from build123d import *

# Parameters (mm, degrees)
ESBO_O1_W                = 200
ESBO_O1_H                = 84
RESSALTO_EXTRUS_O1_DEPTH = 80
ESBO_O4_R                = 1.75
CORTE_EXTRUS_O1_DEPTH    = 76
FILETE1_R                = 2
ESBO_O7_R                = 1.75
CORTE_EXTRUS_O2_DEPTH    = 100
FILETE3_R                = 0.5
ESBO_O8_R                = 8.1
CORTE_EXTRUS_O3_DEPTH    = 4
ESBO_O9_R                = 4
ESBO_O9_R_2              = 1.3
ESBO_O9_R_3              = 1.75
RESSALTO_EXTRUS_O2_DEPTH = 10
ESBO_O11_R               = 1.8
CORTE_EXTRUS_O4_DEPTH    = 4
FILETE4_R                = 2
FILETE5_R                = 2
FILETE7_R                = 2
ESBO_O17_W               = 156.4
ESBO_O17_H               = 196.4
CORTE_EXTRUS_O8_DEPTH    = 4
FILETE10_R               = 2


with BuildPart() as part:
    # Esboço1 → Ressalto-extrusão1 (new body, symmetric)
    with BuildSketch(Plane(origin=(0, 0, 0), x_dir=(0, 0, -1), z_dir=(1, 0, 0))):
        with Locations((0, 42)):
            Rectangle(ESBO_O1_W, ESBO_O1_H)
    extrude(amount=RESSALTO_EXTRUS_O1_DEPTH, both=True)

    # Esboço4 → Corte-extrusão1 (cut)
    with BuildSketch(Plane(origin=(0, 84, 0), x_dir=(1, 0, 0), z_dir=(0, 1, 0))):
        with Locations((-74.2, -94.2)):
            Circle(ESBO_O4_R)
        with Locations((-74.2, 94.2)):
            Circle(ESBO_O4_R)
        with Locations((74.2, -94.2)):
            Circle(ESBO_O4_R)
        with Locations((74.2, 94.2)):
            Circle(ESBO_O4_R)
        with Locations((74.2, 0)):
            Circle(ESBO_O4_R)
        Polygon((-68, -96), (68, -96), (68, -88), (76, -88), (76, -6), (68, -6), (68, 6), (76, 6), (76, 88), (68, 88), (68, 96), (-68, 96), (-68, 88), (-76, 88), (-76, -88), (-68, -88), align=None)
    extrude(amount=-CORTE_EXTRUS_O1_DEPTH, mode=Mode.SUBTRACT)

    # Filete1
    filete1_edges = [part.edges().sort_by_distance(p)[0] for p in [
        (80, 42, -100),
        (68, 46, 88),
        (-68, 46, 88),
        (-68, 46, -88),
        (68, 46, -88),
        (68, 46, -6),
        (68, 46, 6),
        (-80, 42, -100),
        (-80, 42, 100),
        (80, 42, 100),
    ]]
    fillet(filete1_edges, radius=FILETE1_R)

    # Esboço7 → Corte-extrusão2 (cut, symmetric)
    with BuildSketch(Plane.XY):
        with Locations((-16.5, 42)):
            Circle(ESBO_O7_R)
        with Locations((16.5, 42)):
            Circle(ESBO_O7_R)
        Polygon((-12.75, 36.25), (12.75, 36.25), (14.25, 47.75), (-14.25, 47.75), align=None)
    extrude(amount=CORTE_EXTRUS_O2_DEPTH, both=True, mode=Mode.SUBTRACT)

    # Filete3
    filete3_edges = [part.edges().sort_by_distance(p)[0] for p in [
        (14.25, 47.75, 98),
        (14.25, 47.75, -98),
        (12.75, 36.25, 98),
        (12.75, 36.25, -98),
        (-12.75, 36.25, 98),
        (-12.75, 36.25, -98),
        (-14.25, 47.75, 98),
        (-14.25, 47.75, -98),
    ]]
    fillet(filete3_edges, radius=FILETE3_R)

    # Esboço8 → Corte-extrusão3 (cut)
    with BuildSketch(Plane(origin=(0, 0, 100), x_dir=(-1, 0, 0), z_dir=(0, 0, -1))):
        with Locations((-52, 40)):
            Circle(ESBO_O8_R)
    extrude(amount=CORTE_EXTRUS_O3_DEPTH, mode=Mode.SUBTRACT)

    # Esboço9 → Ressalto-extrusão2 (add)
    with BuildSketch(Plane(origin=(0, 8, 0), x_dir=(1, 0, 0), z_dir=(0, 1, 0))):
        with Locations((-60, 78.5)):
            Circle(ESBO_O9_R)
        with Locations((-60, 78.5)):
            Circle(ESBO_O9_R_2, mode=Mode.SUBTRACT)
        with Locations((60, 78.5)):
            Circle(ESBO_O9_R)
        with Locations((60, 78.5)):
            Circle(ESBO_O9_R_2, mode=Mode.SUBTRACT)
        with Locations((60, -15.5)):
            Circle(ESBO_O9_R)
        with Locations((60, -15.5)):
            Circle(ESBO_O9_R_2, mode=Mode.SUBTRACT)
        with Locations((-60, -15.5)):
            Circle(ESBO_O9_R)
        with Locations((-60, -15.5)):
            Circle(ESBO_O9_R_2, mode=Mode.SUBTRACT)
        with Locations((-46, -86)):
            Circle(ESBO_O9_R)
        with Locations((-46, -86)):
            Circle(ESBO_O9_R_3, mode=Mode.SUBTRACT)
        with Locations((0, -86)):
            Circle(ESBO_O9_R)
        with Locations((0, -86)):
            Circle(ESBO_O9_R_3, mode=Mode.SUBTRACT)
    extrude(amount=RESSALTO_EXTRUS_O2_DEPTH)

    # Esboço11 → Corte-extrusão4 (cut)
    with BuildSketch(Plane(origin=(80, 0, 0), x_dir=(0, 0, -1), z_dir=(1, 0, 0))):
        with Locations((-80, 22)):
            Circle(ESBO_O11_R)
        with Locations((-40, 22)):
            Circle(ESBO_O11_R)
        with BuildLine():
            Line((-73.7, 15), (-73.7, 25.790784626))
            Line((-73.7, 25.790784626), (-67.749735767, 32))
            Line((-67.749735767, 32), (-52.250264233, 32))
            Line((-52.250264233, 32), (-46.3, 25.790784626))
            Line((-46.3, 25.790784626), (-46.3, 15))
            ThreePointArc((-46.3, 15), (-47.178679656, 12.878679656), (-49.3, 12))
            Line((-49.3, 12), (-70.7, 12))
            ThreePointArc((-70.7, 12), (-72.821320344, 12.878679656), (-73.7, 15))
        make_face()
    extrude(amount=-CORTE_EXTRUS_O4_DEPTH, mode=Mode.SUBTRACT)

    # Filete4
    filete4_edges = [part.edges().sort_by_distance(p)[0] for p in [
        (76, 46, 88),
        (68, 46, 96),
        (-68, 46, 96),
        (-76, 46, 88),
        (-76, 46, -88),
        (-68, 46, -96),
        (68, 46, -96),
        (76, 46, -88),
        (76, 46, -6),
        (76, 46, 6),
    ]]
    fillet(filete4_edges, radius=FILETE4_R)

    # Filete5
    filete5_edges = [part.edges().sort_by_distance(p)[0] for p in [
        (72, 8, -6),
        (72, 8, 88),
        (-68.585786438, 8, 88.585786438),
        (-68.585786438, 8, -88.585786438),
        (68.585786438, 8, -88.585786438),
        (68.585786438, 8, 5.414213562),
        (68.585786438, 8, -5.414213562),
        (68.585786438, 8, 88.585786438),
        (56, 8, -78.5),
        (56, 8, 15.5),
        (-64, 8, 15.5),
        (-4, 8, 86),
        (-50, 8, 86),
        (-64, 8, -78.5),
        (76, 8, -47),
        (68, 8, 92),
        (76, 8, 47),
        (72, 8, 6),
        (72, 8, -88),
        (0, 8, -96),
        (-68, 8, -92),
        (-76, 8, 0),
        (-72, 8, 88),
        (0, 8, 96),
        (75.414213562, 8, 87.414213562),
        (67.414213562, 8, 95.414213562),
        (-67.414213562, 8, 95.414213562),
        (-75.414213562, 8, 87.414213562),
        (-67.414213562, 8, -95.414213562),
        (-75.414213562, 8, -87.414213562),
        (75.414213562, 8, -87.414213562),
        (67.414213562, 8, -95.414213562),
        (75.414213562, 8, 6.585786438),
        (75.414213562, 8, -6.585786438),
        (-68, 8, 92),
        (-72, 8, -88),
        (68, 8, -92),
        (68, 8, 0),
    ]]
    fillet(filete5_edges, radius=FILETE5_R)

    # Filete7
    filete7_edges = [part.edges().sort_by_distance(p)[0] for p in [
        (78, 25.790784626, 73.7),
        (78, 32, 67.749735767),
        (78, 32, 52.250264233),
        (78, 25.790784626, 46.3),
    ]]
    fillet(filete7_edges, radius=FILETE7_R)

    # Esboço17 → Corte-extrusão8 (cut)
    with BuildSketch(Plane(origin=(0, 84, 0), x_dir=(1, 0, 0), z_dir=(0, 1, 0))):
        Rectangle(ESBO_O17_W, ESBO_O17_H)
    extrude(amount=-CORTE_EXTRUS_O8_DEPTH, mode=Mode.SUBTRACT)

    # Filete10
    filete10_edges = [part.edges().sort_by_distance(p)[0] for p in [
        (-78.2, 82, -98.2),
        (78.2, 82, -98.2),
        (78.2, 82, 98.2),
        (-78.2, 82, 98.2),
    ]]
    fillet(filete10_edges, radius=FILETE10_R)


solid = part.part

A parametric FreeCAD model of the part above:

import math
import FreeCAD as App
import Part
import Sketcher

V = App.Vector
Q = App.Units.Quantity


def edges_at(feature, points):
    """Names of the edges that pass closest to the given points."""
    edges = feature.Shape.Edges
    near = lambda p: min(range(len(edges)), key=lambda i: edges[i].distToShape(Part.Vertex(*p))[0])
    return sorted({f"Edge{near(p) + 1}" for p in points})


def add_polygon(sketch, points):
    """Adds a closed chain of lines whose ends are joined by coincident constraints."""
    first, n = sketch.GeometryCount, len(points)
    for a, b in zip(points, points[1:] + points[:1]):
        sketch.addGeometry(Part.LineSegment(App.Vector(*a, 0), App.Vector(*b, 0)), False)
    for i in range(n):
        sketch.addConstraint(Sketcher.Constraint("Coincident", first + i, 2, first + (i + 1) % n, 1))

doc = App.newDocument("Part")
body = doc.addObject("PartDesign::Body", "Body")

# Sketch on YZ plane
sketch1 = body.newObject("Sketcher::SketchObject", "Sketch")
sketch1.AttachmentSupport = (doc.getObject("YZ_Plane"), [""])
sketch1.MapMode = "FlatFace"
add_polygon(sketch1, [(84, 100), (0, 100), (0, -100), (84, -100)])  # lines 0-3
sketch1.addConstraint(Sketcher.Constraint("Horizontal", 0))
sketch1.addConstraint(Sketcher.Constraint("Vertical", 1))
sketch1.addConstraint(Sketcher.Constraint("Horizontal", 2))
sketch1.addConstraint(Sketcher.Constraint("Vertical", 3))
sketch1.addConstraint(Sketcher.Constraint("Symmetric", 0, 2, 1, 2, -1, 1))
sketch1.addConstraint(Sketcher.Constraint("DistanceX", 0, 2, 0, 1, Q("84 mm")))
sketch1.addConstraint(Sketcher.Constraint("DistanceY", 1, 2, 1, 1, Q("200 mm")))
pad1 = body.newObject("PartDesign::Pad", "Pad")
pad1.Profile = sketch1
pad1.Length = 160
pad1.Midplane = True

# Sketch on XZ plane
sketch2 = body.newObject("Sketcher::SketchObject", "Sketch001")
sketch2.AttachmentSupport = (doc.getObject("XZ_Plane"), [""])
sketch2.MapMode = "FlatFace"
sketch2.AttachmentOffset = App.Placement(V(0, 0, -84), App.Rotation())
sketch2.addGeometry(Part.Circle(V(-74.2, 94.2, 0), V(0, 0, 1), 1.75), False)  # 0
sketch2.addGeometry(Part.Circle(V(-74.2, -94.2, 0), V(0, 0, 1), 1.75), False)  # 1
sketch2.addGeometry(Part.Circle(V(74.2, 94.2, 0), V(0, 0, 1), 1.75), False)  # 2
sketch2.addGeometry(Part.Circle(V(74.2, -94.2, 0), V(0, 0, 1), 1.75), False)  # 3
sketch2.addGeometry(Part.Circle(V(74.2, 0, 0), V(0, 0, 1), 1.75), False)  # 4
add_polygon(sketch2, [(-68, 96), (68, 96), (68, 88), (76, 88), (76, 6), (68, 6), (68, -6), (76, -6), (76, -88), (68, -88), (68, -96), (-68, -96), (-68, -88), (-76, -88), (-76, 88), (-68, 88)])  # lines 5-20
sketch2.addConstraint(Sketcher.Constraint("Horizontal", 5))
sketch2.addConstraint(Sketcher.Constraint("Vertical", 6))
sketch2.addConstraint(Sketcher.Constraint("Horizontal", 7))
sketch2.addConstraint(Sketcher.Constraint("Vertical", 8))
sketch2.addConstraint(Sketcher.Constraint("Horizontal", 9))
sketch2.addConstraint(Sketcher.Constraint("Vertical", 10))
sketch2.addConstraint(Sketcher.Constraint("Horizontal", 11))
sketch2.addConstraint(Sketcher.Constraint("Vertical", 12))
sketch2.addConstraint(Sketcher.Constraint("Horizontal", 13))
sketch2.addConstraint(Sketcher.Constraint("Vertical", 14))
sketch2.addConstraint(Sketcher.Constraint("Horizontal", 15))
sketch2.addConstraint(Sketcher.Constraint("Vertical", 16))
sketch2.addConstraint(Sketcher.Constraint("Horizontal", 17))
sketch2.addConstraint(Sketcher.Constraint("Vertical", 18))
sketch2.addConstraint(Sketcher.Constraint("Horizontal", 19))
sketch2.addConstraint(Sketcher.Constraint("Vertical", 20))
sketch2.addConstraint(Sketcher.Constraint("Equal", 0, 1))
sketch2.addConstraint(Sketcher.Constraint("Equal", 1, 2))
sketch2.addConstraint(Sketcher.Constraint("Equal", 2, 3))
sketch2.addConstraint(Sketcher.Constraint("Equal", 3, 4))
sketch2.addConstraint(Sketcher.Constraint("Symmetric", 1, 3, 2, 3, -1, 1))
sketch2.addConstraint(Sketcher.Constraint("Symmetric", 0, 3, 3, 3, -1, 1))
sketch2.addConstraint(Sketcher.Constraint("Symmetric", 5, 2, 15, 2, -1, 1))
sketch2.addConstraint(Sketcher.Constraint("Symmetric", 7, 2, 17, 2, -1, 1))
sketch2.addConstraint(Sketcher.Constraint("Symmetric", 12, 2, 18, 2, -1, 1))
sketch2.addConstraint(Sketcher.Constraint("Symmetric", 0, 3, 2, 3, -2))
sketch2.addConstraint(Sketcher.Constraint("Symmetric", 13, 2, 16, 2, -2))
sketch2.addConstraint(Sketcher.Constraint("PointOnObject", 4, 3, -1))
sketch2.addConstraint(Sketcher.Constraint("Vertical", 3, 3, 4, 3))
sketch2.addConstraint(Sketcher.Constraint("Vertical", 6, 2, 9, 2))
sketch2.addConstraint(Sketcher.Constraint("Vertical", 16, 2, 19, 2))
sketch2.addConstraint(Sketcher.Constraint("Equal", 19, 6))
sketch2.addConstraint(Sketcher.Constraint("Equal", 8, 12))
sketch2.addConstraint(Sketcher.Constraint("Diameter", 0, Q("3.5 mm")))
sketch2.addConstraint(Sketcher.Constraint("DistanceX", 5, 1, 5, 2, Q("136 mm")))
sketch2.addConstraint(Sketcher.Constraint("DistanceX", 7, 1, 7, 2, Q("8 mm")))
sketch2.addConstraint(Sketcher.Constraint("DistanceY", 8, 2, 8, 1, Q("82 mm")))
sketch2.addConstraint(Sketcher.Constraint("DistanceY", 10, 2, 10, 1, Q("12 mm")))
sketch2.addConstraint(Sketcher.Constraint("DistanceX", 0, 3, -1, 1, Q("74.2 mm")))
sketch2.addConstraint(Sketcher.Constraint("DistanceY", -1, 1, 0, 3, Q("94.2 mm")))
pocket1 = body.newObject("PartDesign::Pocket", "Pocket")
pocket1.Profile = sketch2
pocket1.Length = 76
pocket1.Reversed = True
doc.recompute()

fillet = body.newObject("PartDesign::Fillet", "Fillet")
fillet.Base = (pocket1, edges_at(pocket1, [
    (80, 42, -100),
    (68, 46, 88),
    (-68, 46, 88),
    (-68, 46, -88),
    (68, 46, -88),
    (68, 46, -6),
    (68, 46, 6),
    (-80, 42, -100),
    (-80, 42, 100),
    (80, 42, 100),
]))
fillet.Radius = 2

# Sketch on XY plane
sketch3 = body.newObject("Sketcher::SketchObject", "Sketch002")
sketch3.AttachmentSupport = (doc.getObject("XY_Plane"), [""])
sketch3.MapMode = "FlatFace"
sketch3.addGeometry(Part.Circle(V(-16.5, 42, 0), V(0, 0, 1), 1.75), False)  # 0
sketch3.addGeometry(Part.Circle(V(16.5, 42, 0), V(0, 0, 1), 1.75), False)  # 1
add_polygon(sketch3, [(-12.75, 36.25), (12.75, 36.25), (14.25, 47.75), (-14.25, 47.75)])  # lines 2-5
sketch3.addConstraint(Sketcher.Constraint("Horizontal", 2))
sketch3.addConstraint(Sketcher.Constraint("Horizontal", 4))
sketch3.addConstraint(Sketcher.Constraint("Equal", 0, 1))
sketch3.addConstraint(Sketcher.Constraint("Symmetric", 0, 3, 1, 3, -2))
sketch3.addConstraint(Sketcher.Constraint("Equal", 3, 5))
sketch3.addConstraint(Sketcher.Constraint("Diameter", 0, Q("3.5 mm")))
sketch3.addConstraint(Sketcher.Constraint("DistanceX", 2, 1, 2, 2, Q("25.5 mm")))
sketch3.addConstraint(Sketcher.Constraint("DistanceX", 4, 2, 4, 1, Q("28.5 mm")))
sketch3.addConstraint(Sketcher.Constraint("DistanceY", -1, 1, 0, 3, Q("42 mm")))
sketch3.addConstraint(Sketcher.Constraint("DistanceX", 0, 3, 1, 3, Q("33 mm")))
sketch3.addConstraint(Sketcher.Constraint("DistanceY", 2, 2, 3, 2, Q("11.5 mm")))
sketch3.addConstraint(Sketcher.Constraint("DistanceX", -1, 1, 2, 2, Q("12.75 mm")))
sketch3.addConstraint(Sketcher.Constraint("DistanceY", -1, 1, 2, 2, Q("36.25 mm")))
pocket2 = body.newObject("PartDesign::Pocket", "Pocket001")
pocket2.Profile = sketch3
pocket2.Length = 200
pocket2.Midplane = True
doc.recompute()

fillet2 = body.newObject("PartDesign::Fillet", "Fillet001")
fillet2.Base = (pocket2, edges_at(pocket2, [
    (14.25, 47.75, 98),
    (14.25, 47.75, -98),
    (12.75, 36.25, 98),
    (12.75, 36.25, -98),
    (-12.75, 36.25, 98),
    (-12.75, 36.25, -98),
    (-14.25, 47.75, 98),
    (-14.25, 47.75, -98),
]))
fillet2.Radius = 0.5

# Sketch on XY plane
sketch4 = body.newObject("Sketcher::SketchObject", "Sketch003")
sketch4.AttachmentSupport = (doc.getObject("XY_Plane"), [""])
sketch4.MapMode = "FlatFace"
sketch4.AttachmentOffset = App.Placement(V(0, 0, 100), App.Rotation())
sketch4.addGeometry(Part.Circle(V(52, 40, 0), V(0, 0, 1), 8.1), False)
sketch4.addConstraint(Sketcher.Constraint("Diameter", 0, Q("16.2 mm")))
sketch4.addConstraint(Sketcher.Constraint("DistanceX", -1, 1, 0, 3, Q("52 mm")))
sketch4.addConstraint(Sketcher.Constraint("DistanceY", -1, 1, 0, 3, Q("40 mm")))
pocket3 = body.newObject("PartDesign::Pocket", "Pocket002")
pocket3.Profile = sketch4
pocket3.Length = 4

# Sketch on XZ plane
sketch5 = body.newObject("Sketcher::SketchObject", "Sketch004")
sketch5.AttachmentSupport = (doc.getObject("XZ_Plane"), [""])
sketch5.MapMode = "FlatFace"
sketch5.AttachmentOffset = App.Placement(V(0, 0, -8), App.Rotation())
sketch5.addGeometry(Part.Circle(V(-60, -78.5, 0), V(0, 0, 1), 4), False)
sketch5.addGeometry(Part.Circle(V(-60, -78.5, 0), V(0, 0, 1), 1.3), False)
sketch5.addGeometry(Part.Circle(V(60, -78.5, 0), V(0, 0, 1), 4), False)
sketch5.addGeometry(Part.Circle(V(60, -78.5, 0), V(0, 0, 1), 1.3), False)
sketch5.addGeometry(Part.Circle(V(60, 15.5, 0), V(0, 0, 1), 4), False)
sketch5.addGeometry(Part.Circle(V(60, 15.5, 0), V(0, 0, 1), 1.3), False)
sketch5.addGeometry(Part.Circle(V(-60, 15.5, 0), V(0, 0, 1), 4), False)
sketch5.addGeometry(Part.Circle(V(-60, 15.5, 0), V(0, 0, 1), 1.3), False)
sketch5.addGeometry(Part.Circle(V(-46, 86, 0), V(0, 0, 1), 4), False)
sketch5.addGeometry(Part.Circle(V(-46, 86, 0), V(0, 0, 1), 1.75), False)
sketch5.addGeometry(Part.Circle(V(0, 86, 0), V(0, 0, 1), 4), False)
sketch5.addGeometry(Part.Circle(V(0, 86, 0), V(0, 0, 1), 1.75), False)
sketch5.addConstraint(Sketcher.Constraint("Coincident", 1, 3, 0, 3))
sketch5.addConstraint(Sketcher.Constraint("Coincident", 3, 3, 2, 3))
sketch5.addConstraint(Sketcher.Constraint("Coincident", 5, 3, 4, 3))
sketch5.addConstraint(Sketcher.Constraint("Coincident", 7, 3, 6, 3))
sketch5.addConstraint(Sketcher.Constraint("Coincident", 9, 3, 8, 3))
sketch5.addConstraint(Sketcher.Constraint("Coincident", 11, 3, 10, 3))
sketch5.addConstraint(Sketcher.Constraint("Equal", 0, 2))
sketch5.addConstraint(Sketcher.Constraint("Equal", 1, 3))
sketch5.addConstraint(Sketcher.Constraint("Equal", 2, 4))
sketch5.addConstraint(Sketcher.Constraint("Equal", 3, 5))
sketch5.addConstraint(Sketcher.Constraint("Equal", 4, 6))
sketch5.addConstraint(Sketcher.Constraint("Equal", 5, 7))
sketch5.addConstraint(Sketcher.Constraint("Equal", 6, 8))
sketch5.addConstraint(Sketcher.Constraint("Equal", 8, 10))
sketch5.addConstraint(Sketcher.Constraint("Equal", 9, 11))
sketch5.addConstraint(Sketcher.Constraint("Symmetric", 0, 3, 2, 3, -2))
sketch5.addConstraint(Sketcher.Constraint("Symmetric", 4, 3, 6, 3, -2))
sketch5.addConstraint(Sketcher.Constraint("PointOnObject", 10, 3, -2))
sketch5.addConstraint(Sketcher.Constraint("Horizontal", 9, 3, 10, 3))
sketch5.addConstraint(Sketcher.Constraint("Vertical", 3, 3, 4, 3))
sketch5.addConstraint(Sketcher.Constraint("Diameter", 0, Q("8 mm")))
sketch5.addConstraint(Sketcher.Constraint("Diameter", 1, Q("2.6 mm")))
sketch5.addConstraint(Sketcher.Constraint("Diameter", 9, Q("3.5 mm")))
sketch5.addConstraint(Sketcher.Constraint("DistanceX", 0, 3, -1, 1, Q("60 mm")))
sketch5.addConstraint(Sketcher.Constraint("DistanceX", 8, 3, -1, 1, Q("46 mm")))
sketch5.addConstraint(Sketcher.Constraint("DistanceY", -1, 1, 8, 3, Q("86 mm")))
sketch5.addConstraint(Sketcher.Constraint("DistanceY", 2, 3, 4, 3, Q("94 mm")))
sketch5.addConstraint(Sketcher.Constraint("DistanceY", 0, 3, -1, 1, Q("78.5 mm")))
pad2 = body.newObject("PartDesign::Pad", "Pad001")
pad2.Profile = sketch5
pad2.Length = 10
pad2.Reversed = True

# Sketch on YZ plane
sketch6 = body.newObject("Sketcher::SketchObject", "Sketch005")
sketch6.AttachmentSupport = (doc.getObject("YZ_Plane"), [""])
sketch6.MapMode = "FlatFace"
sketch6.AttachmentOffset = App.Placement(V(0, 0, 80), App.Rotation())
sketch6.addGeometry(Part.Circle(V(22, 80, 0), V(0, 0, 1), 1.8), False)
sketch6.addGeometry(Part.Circle(V(22, 40, 0), V(0, 0, 1), 1.8), False)
sketch6.addGeometry(Part.LineSegment(V(25.790785, 73.7, 0), V(15, 73.7, 0)), False)
sketch6.addGeometry(Part.ArcOfCircle(Part.Circle(V(15, 70.7, 0), V(0, 0, 1), 3), math.radians(90), math.radians(180)), False)
sketch6.addGeometry(Part.LineSegment(V(12, 70.7, 0), V(12, 49.3, 0)), False)
sketch6.addGeometry(Part.ArcOfCircle(Part.Circle(V(15, 49.3, 0), V(0, 0, 1), 3), math.radians(180), math.radians(270)), False)
sketch6.addGeometry(Part.LineSegment(V(15, 46.3, 0), V(25.790785, 46.3, 0)), False)
sketch6.addGeometry(Part.LineSegment(V(25.790785, 46.3, 0), V(32, 52.250264, 0)), False)
sketch6.addGeometry(Part.LineSegment(V(32, 52.250264, 0), V(32, 67.749736, 0)), False)
sketch6.addGeometry(Part.LineSegment(V(32, 67.749736, 0), V(25.790785, 73.7, 0)), False)
sketch6.addConstraint(Sketcher.Constraint("Tangent", 2, 2, 3, 1))
sketch6.addConstraint(Sketcher.Constraint("Tangent", 3, 2, 4, 1))
sketch6.addConstraint(Sketcher.Constraint("Tangent", 4, 2, 5, 1))
sketch6.addConstraint(Sketcher.Constraint("Tangent", 5, 2, 6, 1))
sketch6.addConstraint(Sketcher.Constraint("Coincident", 6, 2, 7, 1))
sketch6.addConstraint(Sketcher.Constraint("Coincident", 7, 2, 8, 1))
sketch6.addConstraint(Sketcher.Constraint("Coincident", 8, 2, 9, 1))
sketch6.addConstraint(Sketcher.Constraint("Coincident", 9, 2, 2, 1))
sketch6.addConstraint(Sketcher.Constraint("Horizontal", 2))
sketch6.addConstraint(Sketcher.Constraint("Vertical", 4))
sketch6.addConstraint(Sketcher.Constraint("Horizontal", 6))
sketch6.addConstraint(Sketcher.Constraint("Vertical", 8))
sketch6.addConstraint(Sketcher.Constraint("Equal", 0, 1))
sketch6.addConstraint(Sketcher.Constraint("Equal", 3, 5))
sketch6.addConstraint(Sketcher.Constraint("Vertical", 0, 3, 1, 3))
sketch6.addConstraint(Sketcher.Constraint("Vertical", 6, 2, 9, 2))
sketch6.addConstraint(Sketcher.Constraint("Equal", 7, 9))
sketch6.addConstraint(Sketcher.Constraint("Radius", 3, Q("3 mm")))
sketch6.addConstraint(Sketcher.Constraint("Diameter", 0, Q("3.6 mm")))
sketch6.addConstraint(Sketcher.Constraint("DistanceY", 4, 2, 4, 1, Q("21.4 mm")))
sketch6.addConstraint(Sketcher.Constraint("DistanceX", -1, 1, 0, 3, Q("22 mm")))
sketch6.addConstraint(Sketcher.Constraint("DistanceY", -1, 1, 0, 3, Q("80 mm")))
sketch6.addConstraint(Sketcher.Constraint("DistanceY", -1, 1, 1, 3, Q("40 mm")))
sketch6.addConstraint(Sketcher.Constraint("DistanceX", -1, 1, 3, 3, Q("15 mm")))
sketch6.addConstraint(Sketcher.Constraint("DistanceX", -1, 1, 7, 2, Q("32 mm")))
sketch6.addConstraint(Sketcher.Constraint("Distance", 7, Q("8.6 mm")))
sketch6.addConstraint(Sketcher.Constraint("DistanceY", -1, 1, 3, 3, Q("70.7 mm")))
sketch6.addConstraint(Sketcher.Constraint("Angle", 7, Q("43.78 deg")))
pocket4 = body.newObject("PartDesign::Pocket", "Pocket003")
pocket4.Profile = sketch6
pocket4.Length = 4
doc.recompute()

fillet3 = body.newObject("PartDesign::Fillet", "Fillet002")
fillet3.Base = (pocket4, edges_at(pocket4, [
    (76, 46, 88),
    (68, 46, 96),
    (-68, 46, 96),
    (-76, 46, 88),
    (-76, 46, -88),
    (-68, 46, -96),
    (68, 46, -96),
    (76, 46, -88),
    (76, 46, -6),
    (76, 46, 6),
]))
fillet3.Radius = 2
doc.recompute()

fillet4 = body.newObject("PartDesign::Fillet", "Fillet003")
fillet4.Base = (fillet3, edges_at(fillet3, [
    (72, 8, -6),
    (72, 8, 88),
    (-68.586, 8, 88.586),
    (-68.586, 8, -88.586),
    (68.586, 8, -88.586),
    (68.586, 8, 5.414),
    (68.586, 8, -5.414),
    (68.586, 8, 88.586),
    (56, 8, -78.5),
    (56, 8, 15.5),
    (-64, 8, 15.5),
    (-4, 8, 86),
    (-50, 8, 86),
    (-64, 8, -78.5),
    (76, 8, -47),
    (68, 8, 92),
    (76, 8, 47),
    (72, 8, 6),
    (72, 8, -88),
    (0, 8, -96),
    (-68, 8, -92),
    (-76, 8, 0),
    (-72, 8, 88),
    (0, 8, 96),
    (75.414, 8, 87.414),
    (67.414, 8, 95.414),
    (-67.414, 8, 95.414),
    (-75.414, 8, 87.414),
    (-67.414, 8, -95.414),
    (-75.414, 8, -87.414),
    (75.414, 8, -87.414),
    (67.414, 8, -95.414),
    (75.414, 8, 6.586),
    (75.414, 8, -6.586),
    (-68, 8, 92),
    (-72, 8, -88),
    (68, 8, -92),
    (68, 8, 0),
]))
fillet4.Radius = 2
doc.recompute()

fillet5 = body.newObject("PartDesign::Fillet", "Fillet004")
fillet5.Base = (fillet4, edges_at(fillet4, [
    (78, 25.791, 73.7),
    (78, 32, 67.75),
    (78, 32, 52.25),
    (78, 25.791, 46.3),
]))
fillet5.Radius = 2

# Sketch on XZ plane
sketch7 = body.newObject("Sketcher::SketchObject", "Sketch006")
sketch7.AttachmentSupport = (doc.getObject("XZ_Plane"), [""])
sketch7.MapMode = "FlatFace"
sketch7.AttachmentOffset = App.Placement(V(0, 0, -84), App.Rotation())
add_polygon(sketch7, [(-78.2, -98.2), (-78.2, 98.2), (78.2, 98.2), (78.2, -98.2)])  # lines 0-3
sketch7.addConstraint(Sketcher.Constraint("Vertical", 0))
sketch7.addConstraint(Sketcher.Constraint("Horizontal", 1))
sketch7.addConstraint(Sketcher.Constraint("Vertical", 2))
sketch7.addConstraint(Sketcher.Constraint("Horizontal", 3))
sketch7.addConstraint(Sketcher.Constraint("Symmetric", 0, 2, 2, 2, -1, 1))
sketch7.addConstraint(Sketcher.Constraint("DistanceX", 1, 1, 1, 2, Q("156.4 mm")))
sketch7.addConstraint(Sketcher.Constraint("DistanceY", 0, 1, 0, 2, Q("196.4 mm")))
pocket5 = body.newObject("PartDesign::Pocket", "Pocket004")
pocket5.Profile = sketch7
pocket5.Length = 4
pocket5.Reversed = True
doc.recompute()

fillet6 = body.newObject("PartDesign::Fillet", "Fillet005")
fillet6.Base = (pocket5, edges_at(pocket5, [
    (-78.2, 82, -98.2),
    (78.2, 82, -98.2),
    (78.2, 82, 98.2),
    (-78.2, 82, 98.2),
]))
fillet6.Radius = 2

doc.recompute()
